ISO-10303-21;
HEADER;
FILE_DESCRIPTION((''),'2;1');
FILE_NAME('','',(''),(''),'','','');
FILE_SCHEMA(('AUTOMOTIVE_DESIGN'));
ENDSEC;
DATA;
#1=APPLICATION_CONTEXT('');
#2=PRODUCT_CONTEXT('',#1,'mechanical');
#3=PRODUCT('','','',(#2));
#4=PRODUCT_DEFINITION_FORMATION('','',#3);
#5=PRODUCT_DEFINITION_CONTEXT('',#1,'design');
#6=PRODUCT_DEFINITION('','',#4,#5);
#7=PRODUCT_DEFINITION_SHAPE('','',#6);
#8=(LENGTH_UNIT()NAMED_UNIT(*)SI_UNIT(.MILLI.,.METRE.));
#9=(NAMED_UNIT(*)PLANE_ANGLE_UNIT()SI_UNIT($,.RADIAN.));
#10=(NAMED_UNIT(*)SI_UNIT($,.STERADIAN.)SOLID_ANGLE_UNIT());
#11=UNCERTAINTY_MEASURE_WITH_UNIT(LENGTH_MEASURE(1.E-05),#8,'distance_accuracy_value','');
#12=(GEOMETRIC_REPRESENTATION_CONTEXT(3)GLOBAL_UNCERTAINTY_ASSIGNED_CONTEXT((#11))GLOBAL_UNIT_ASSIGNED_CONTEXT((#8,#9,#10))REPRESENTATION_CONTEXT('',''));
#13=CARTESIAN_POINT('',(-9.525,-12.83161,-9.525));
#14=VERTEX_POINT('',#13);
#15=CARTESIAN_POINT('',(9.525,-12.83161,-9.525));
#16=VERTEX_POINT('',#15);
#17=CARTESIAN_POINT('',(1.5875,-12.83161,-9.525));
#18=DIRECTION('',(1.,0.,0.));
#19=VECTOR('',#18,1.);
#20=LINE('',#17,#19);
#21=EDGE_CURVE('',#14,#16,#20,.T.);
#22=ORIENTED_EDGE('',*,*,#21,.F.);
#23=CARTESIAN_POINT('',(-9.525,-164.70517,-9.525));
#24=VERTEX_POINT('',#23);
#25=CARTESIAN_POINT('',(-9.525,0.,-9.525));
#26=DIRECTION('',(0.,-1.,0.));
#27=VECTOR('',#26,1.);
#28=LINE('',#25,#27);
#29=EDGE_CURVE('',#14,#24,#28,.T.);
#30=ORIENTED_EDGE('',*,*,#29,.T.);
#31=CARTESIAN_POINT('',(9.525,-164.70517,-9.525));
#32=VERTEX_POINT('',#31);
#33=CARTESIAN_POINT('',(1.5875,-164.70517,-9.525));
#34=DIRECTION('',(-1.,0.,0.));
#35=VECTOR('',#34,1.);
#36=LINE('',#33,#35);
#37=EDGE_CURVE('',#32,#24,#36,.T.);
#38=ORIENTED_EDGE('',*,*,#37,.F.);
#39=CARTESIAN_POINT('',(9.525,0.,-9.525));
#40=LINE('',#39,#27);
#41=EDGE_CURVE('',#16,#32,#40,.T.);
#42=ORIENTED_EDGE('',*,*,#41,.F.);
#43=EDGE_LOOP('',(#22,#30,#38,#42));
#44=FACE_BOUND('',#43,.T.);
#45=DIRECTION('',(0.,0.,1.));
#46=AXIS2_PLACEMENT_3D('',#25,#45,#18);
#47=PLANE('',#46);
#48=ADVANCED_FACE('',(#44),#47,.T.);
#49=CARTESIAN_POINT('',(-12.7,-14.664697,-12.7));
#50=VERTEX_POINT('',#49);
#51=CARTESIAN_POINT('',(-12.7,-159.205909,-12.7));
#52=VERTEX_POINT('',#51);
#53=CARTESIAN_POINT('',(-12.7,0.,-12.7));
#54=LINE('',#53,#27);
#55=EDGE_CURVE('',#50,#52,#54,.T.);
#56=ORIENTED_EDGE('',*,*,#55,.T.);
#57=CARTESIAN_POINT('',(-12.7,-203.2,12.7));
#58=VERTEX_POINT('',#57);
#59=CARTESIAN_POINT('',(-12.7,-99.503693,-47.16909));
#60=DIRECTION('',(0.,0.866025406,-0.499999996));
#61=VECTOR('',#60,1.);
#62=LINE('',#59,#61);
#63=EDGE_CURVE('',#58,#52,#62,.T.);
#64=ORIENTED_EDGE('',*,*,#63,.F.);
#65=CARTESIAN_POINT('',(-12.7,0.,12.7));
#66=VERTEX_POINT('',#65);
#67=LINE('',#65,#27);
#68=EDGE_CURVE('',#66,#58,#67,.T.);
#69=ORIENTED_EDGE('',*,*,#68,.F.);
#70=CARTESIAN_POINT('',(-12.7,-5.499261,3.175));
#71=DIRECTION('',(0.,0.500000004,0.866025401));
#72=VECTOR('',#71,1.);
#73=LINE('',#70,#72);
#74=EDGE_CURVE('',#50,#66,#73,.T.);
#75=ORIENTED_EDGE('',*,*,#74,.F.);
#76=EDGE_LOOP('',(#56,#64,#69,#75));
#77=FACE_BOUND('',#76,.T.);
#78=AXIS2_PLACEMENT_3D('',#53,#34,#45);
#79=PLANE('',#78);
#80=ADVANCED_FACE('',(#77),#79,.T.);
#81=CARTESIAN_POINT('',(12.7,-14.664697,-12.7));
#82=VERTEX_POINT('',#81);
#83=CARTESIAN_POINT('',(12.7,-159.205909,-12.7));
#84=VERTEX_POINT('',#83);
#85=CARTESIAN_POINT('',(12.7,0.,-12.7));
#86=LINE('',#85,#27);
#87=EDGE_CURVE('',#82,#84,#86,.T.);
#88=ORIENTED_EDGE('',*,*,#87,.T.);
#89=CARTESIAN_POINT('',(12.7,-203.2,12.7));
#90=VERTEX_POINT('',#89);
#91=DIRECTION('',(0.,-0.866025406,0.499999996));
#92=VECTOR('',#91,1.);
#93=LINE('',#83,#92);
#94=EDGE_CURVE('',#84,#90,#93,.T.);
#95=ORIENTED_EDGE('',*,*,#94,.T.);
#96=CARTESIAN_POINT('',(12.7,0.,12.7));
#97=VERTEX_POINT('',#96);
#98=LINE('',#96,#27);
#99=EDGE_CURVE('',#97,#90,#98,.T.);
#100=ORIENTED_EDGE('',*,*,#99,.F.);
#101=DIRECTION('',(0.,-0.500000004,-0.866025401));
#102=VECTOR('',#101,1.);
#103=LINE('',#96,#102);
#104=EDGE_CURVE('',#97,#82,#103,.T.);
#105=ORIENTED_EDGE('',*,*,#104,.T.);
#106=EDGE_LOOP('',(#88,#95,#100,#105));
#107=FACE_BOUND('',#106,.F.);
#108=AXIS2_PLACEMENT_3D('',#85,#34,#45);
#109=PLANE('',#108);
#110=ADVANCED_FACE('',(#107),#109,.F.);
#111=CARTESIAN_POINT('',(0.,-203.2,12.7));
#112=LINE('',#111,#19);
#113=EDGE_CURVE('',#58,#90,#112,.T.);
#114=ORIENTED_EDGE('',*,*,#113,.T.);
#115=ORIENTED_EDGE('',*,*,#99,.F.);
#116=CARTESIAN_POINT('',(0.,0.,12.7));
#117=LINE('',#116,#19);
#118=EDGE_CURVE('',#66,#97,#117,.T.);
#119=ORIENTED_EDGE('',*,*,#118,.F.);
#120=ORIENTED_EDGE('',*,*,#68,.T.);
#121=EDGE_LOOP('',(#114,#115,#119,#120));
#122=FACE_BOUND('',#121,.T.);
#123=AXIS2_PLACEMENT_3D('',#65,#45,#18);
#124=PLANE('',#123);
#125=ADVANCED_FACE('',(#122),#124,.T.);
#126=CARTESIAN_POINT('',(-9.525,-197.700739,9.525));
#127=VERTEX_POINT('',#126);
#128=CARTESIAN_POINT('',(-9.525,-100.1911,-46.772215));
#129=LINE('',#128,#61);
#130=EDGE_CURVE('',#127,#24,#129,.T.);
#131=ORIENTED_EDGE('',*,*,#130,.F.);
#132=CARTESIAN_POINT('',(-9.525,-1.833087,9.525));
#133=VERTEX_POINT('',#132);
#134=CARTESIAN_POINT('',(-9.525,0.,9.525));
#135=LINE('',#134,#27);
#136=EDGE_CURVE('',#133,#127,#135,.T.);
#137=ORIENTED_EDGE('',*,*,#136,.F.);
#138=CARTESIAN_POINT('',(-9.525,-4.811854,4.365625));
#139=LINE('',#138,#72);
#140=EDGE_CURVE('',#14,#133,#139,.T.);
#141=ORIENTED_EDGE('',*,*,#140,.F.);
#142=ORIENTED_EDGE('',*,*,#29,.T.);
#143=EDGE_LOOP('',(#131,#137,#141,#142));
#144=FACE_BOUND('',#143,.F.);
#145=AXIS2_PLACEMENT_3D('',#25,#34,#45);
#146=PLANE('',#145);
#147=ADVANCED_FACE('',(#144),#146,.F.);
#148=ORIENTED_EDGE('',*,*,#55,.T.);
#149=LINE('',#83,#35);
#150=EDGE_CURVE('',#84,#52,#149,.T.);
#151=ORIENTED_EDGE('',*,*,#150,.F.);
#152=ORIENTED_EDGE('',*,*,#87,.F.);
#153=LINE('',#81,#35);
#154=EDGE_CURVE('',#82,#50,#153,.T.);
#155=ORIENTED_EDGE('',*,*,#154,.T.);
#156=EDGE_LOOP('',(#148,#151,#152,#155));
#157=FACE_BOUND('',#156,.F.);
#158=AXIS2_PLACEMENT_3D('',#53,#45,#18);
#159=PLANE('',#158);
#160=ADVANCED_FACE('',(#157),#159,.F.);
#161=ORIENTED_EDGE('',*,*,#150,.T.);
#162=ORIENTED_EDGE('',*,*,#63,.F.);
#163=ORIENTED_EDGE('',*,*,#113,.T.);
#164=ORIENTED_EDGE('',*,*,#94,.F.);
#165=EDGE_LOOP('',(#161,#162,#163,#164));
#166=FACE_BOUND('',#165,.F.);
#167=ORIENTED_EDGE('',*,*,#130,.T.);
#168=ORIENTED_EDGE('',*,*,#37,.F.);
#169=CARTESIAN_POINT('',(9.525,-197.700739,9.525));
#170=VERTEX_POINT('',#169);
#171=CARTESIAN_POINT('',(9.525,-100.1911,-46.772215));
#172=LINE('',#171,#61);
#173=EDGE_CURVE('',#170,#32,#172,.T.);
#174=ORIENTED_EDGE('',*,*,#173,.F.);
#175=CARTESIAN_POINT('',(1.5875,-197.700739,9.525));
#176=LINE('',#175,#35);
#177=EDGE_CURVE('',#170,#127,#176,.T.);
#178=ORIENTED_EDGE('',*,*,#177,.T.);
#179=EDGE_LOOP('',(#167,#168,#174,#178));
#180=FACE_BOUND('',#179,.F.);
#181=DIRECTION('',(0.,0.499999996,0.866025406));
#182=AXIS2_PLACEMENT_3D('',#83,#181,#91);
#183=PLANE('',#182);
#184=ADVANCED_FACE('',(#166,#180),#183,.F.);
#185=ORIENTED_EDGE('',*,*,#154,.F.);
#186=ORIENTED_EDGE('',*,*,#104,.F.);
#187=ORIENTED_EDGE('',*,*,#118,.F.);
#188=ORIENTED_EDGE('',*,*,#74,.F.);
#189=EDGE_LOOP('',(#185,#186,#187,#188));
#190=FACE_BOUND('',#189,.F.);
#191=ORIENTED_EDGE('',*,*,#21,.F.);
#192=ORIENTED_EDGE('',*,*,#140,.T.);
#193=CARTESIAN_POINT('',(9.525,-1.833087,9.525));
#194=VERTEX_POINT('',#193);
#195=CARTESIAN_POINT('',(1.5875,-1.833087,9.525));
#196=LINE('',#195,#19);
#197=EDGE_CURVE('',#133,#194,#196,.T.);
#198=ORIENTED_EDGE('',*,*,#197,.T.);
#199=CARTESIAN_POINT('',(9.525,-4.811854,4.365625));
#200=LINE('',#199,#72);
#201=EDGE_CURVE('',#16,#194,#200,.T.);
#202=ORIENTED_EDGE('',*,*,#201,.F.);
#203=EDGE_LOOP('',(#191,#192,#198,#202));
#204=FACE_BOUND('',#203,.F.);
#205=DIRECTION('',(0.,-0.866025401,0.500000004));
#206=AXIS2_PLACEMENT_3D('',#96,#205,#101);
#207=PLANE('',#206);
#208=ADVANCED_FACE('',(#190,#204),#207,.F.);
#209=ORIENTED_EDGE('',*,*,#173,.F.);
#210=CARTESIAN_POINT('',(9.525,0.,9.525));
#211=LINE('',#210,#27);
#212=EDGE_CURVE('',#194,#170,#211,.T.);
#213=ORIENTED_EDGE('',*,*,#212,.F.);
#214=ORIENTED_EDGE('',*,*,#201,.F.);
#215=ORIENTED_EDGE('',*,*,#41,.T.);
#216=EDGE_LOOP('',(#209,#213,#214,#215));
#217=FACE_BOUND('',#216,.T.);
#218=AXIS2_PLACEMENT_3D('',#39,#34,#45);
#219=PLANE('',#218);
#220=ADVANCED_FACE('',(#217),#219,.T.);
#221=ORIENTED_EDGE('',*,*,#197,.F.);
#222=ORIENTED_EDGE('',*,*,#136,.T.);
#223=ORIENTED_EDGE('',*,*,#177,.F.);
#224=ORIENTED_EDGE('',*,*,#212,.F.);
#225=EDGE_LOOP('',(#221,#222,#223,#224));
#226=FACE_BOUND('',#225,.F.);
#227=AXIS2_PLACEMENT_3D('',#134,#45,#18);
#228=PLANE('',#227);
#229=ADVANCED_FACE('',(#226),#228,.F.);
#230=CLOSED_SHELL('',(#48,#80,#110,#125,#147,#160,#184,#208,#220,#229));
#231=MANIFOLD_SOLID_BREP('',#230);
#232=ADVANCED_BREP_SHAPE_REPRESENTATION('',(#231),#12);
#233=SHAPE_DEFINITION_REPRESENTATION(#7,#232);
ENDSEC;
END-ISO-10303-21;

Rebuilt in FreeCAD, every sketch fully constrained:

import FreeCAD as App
import Part
import Sketcher
Q = App.Units.Quantity


def add_polygon(sketch, points):
    """Adds a closed chain of lines whose ends are joined by coincident constraints."""
    first, n = sketch.GeometryCount, len(points)
    for a, b in zip(points, points[1:] + points[:1]):
        sketch.addGeometry(Part.LineSegment(App.Vector(*a, 0), App.Vector(*b, 0)), False)
    for i in range(n):
        sketch.addConstraint(Sketcher.Constraint("Coincident", first + i, 2, first + (i + 1) % n, 1))

doc = App.newDocument("Part")
body = doc.addObject("PartDesign::Body", "Body")

sketch1 = body.newObject("Sketcher::SketchObject", "Sketch")
sketch1.AttachmentSupport = (doc.getObject("XZ_Plane"), [""])
sketch1.MapMode = "FlatFace"
add_polygon(sketch1, [(-13, 13), (-13, -13), (13, -13), (13, 13)])
add_polygon(sketch1, [(10, -10), (-10, -10), (-10, 10), (10, 10)])
sketch1.addConstraint(Sketcher.Constraint("Vertical", 0))
sketch1.addConstraint(Sketcher.Constraint("Horizontal", 1))
sketch1.addConstraint(Sketcher.Constraint("Vertical", 2))
sketch1.addConstraint(Sketcher.Constraint("Horizontal", 3))
sketch1.addConstraint(Sketcher.Constraint("Horizontal", 4))
sketch1.addConstraint(Sketcher.Constraint("Vertical", 5))
sketch1.addConstraint(Sketcher.Constraint("Horizontal", 6))
sketch1.addConstraint(Sketcher.Constraint("Vertical", 7))
sketch1.addConstraint(Sketcher.Constraint("Symmetric", 0, 2, 2, 2, -1, 1))
sketch1.addConstraint(Sketcher.Constraint("Symmetric", 4, 2, 6, 2, -1, 1))
sketch1.addConstraint(Sketcher.Constraint("Equal", 3, 0))
sketch1.addConstraint(Sketcher.Constraint("Equal", 6, 5))
sketch1.addConstraint(Sketcher.Constraint("DistanceX", 1, 1, 1, 2, Q("1 in")))
sketch1.addConstraint(Sketcher.Constraint("DistanceX", 4, 2, 4, 1, Q("0.75 in")))
pad1 = body.newObject("PartDesign::Pad", "Pad")
pad1.Profile = sketch1
pad1.Length = Q("8 in")

sketch2 = body.newObject("Sketcher::SketchObject", "Sketch001")
sketch2.AttachmentSupport = (doc.getObject("YZ_Plane"), [""])
sketch2.MapMode = "FlatFace"
sketch2.AttachmentOffset = App.Placement(App.Vector(0, 0, 0.5 * 25.4), App.Rotation())
add_polygon(sketch2, [(-159, -13), (-203, 13), (-203, -13)])
add_polygon(sketch2, [(0, -13), (0, 13), (-15, -13)])
sketch2.addConstraint(Sketcher.Constraint("Vertical", 1))
sketch2.addConstraint(Sketcher.Constraint("Horizontal", 2))
sketch2.addConstraint(Sketcher.Constraint("Vertical", 3))
sketch2.addConstraint(Sketcher.Constraint("Horizontal", 5))
sketch2.addConstraint(Sketcher.Constraint("Symmetric", 3, 2, 5, 2, -1, 1))
sketch2.addConstraint(Sketcher.Constraint("Perpendicular", 0, 4))
sketch2.addConstraint(Sketcher.Constraint("Horizontal", 0, 2, 3, 2))
sketch2.addConstraint(Sketcher.Constraint("Horizontal", 2, 2, 4, 2))
sketch2.addConstraint(Sketcher.Constraint("DistanceY", 1, 2, 1, 1, Q("1 in")))
sketch2.addConstraint(Sketcher.Constraint("Distance", 0, Q("2 in")))
sketch2.addConstraint(Sketcher.Constraint("DistanceX", 0, 2, -1, 1, Q("8 in")))
pocket1 = body.newObject("PartDesign::Pocket", "Pocket")
pocket1.Profile = sketch2
pocket1.Type = "ThroughAll"

doc.recompute()
